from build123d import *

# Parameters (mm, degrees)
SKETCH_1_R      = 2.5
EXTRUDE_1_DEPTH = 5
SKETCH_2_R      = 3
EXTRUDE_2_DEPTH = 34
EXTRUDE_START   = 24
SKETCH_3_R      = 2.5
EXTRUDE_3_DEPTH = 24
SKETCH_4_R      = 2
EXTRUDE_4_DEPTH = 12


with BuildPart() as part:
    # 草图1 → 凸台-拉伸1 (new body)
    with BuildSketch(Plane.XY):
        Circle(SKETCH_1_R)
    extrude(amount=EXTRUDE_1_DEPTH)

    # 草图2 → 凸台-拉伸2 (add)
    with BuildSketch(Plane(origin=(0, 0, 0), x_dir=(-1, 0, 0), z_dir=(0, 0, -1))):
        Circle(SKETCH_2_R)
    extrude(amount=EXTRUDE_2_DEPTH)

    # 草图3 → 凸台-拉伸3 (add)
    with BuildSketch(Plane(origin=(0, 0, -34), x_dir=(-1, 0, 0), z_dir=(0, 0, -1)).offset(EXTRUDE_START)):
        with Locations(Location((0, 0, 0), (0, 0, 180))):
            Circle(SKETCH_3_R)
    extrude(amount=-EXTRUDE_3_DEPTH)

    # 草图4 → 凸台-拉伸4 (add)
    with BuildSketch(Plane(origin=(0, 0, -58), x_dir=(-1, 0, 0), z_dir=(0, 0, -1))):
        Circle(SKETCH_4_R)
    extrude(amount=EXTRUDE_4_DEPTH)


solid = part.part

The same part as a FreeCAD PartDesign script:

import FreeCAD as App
import Part
import Sketcher
Q = App.Units.Quantity

doc = App.newDocument("Part")
body = doc.addObject("PartDesign::Body", "Body")

# Sketch on XY plane
sketch1 = body.newObject("Sketcher::SketchObject", "Sketch")
sketch1.AttachmentSupport = (doc.getObject("XY_Plane"), [""])
sketch1.MapMode = "FlatFace"
sketch1.addGeometry(Part.Circle(App.Vector(0, 0, 0), App.Vector(0, 0, 1), 2.5), False)
sketch1.addConstraint(Sketcher.Constraint("Coincident", 0, 3, -1, 1))
sketch1.addConstraint(Sketcher.Constraint("Diameter", 0, Q("5 mm")))
pad1 = body.newObject("PartDesign::Pad", "Pad")
pad1.Profile = sketch1
pad1.Length = 5

# Sketch on XY plane
sketch2 = body.newObject("Sketcher::SketchObject", "Sketch001")
sketch2.AttachmentSupport = (doc.getObject("XY_Plane"), [""])
sketch2.MapMode = "FlatFace"
sketch2.addGeometry(Part.Circle(App.Vector(0, 0, 0), App.Vector(0, 0, 1), 3), False)
sketch2.addConstraint(Sketcher.Constraint("Coincident", 0, 3, -1, 1))
sketch2.addConstraint(Sketcher.Constraint("Diameter", 0, Q("6 mm")))
pad2 = body.newObject("PartDesign::Pad", "Pad001")
pad2.Profile = sketch2
pad2.Length = 34
pad2.Reversed = True

# Sketch on XY plane
sketch3 = body.newObject("Sketcher::SketchObject", "Sketch002")
sketch3.AttachmentSupport = (doc.getObject("XY_Plane"), [""])
sketch3.MapMode = "FlatFace"
sketch3.AttachmentOffset = App.Placement(App.Vector(0, 0, -58), App.Rotation())
sketch3.addGeometry(Part.Circle(App.Vector(0, 0, 0), App.Vector(0, 0, 1), 2.5), False)
sketch3.addConstraint(Sketcher.Constraint("Coincident", 0, 3, -1, 1))
sketch3.addConstraint(Sketcher.Constraint("Diameter", 0, Q("5 mm")))
pad3 = body.newObject("PartDesign::Pad", "Pad002")
pad3.Profile = sketch3
pad3.Length = 24

# Sketch on XY plane
sketch4 = body.newObject("Sketcher::SketchObject", "Sketch003")
sketch4.AttachmentSupport = (doc.getObject("XY_Plane"), [""])
sketch4.MapMode = "FlatFace"
sketch4.AttachmentOffset = App.Placement(App.Vector(0, 0, -58), App.Rotation())
sketch4.addGeometry(Part.Circle(App.Vector(0, 0, 0), App.Vector(0, 0, 1), 2), False)
sketch4.addConstraint(Sketcher.Constraint("Coincident", 0, 3, -1, 1))
sketch4.addConstraint(Sketcher.Constraint("Diameter", 0, Q("4 mm")))
pad4 = body.newObject("PartDesign::Pad", "Pad003")
pad4.Profile = sketch4
pad4.Length = 12
pad4.Reversed = True

doc.recompute()
